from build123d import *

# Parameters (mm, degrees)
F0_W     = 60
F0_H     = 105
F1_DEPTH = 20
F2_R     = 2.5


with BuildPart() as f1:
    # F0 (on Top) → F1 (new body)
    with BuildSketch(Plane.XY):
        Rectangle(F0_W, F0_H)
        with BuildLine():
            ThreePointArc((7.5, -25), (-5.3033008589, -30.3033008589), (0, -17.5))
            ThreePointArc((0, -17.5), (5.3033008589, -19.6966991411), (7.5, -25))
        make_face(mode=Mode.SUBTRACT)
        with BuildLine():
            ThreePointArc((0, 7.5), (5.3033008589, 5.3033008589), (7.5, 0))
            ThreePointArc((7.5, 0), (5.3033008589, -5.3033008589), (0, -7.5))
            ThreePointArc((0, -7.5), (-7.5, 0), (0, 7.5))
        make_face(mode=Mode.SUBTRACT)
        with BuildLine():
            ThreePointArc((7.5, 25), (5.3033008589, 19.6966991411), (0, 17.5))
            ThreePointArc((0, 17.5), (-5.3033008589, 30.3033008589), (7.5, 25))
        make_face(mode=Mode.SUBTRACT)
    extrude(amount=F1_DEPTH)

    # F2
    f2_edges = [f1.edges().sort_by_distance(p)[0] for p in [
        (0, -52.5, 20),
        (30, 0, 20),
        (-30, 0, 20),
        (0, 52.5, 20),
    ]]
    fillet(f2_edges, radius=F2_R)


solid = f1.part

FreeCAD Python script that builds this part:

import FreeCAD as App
import Part
import Sketcher


def edges_at(feature, points):
    """Names of the edges that pass closest to the given points."""
    edges = feature.Shape.Edges
    near = lambda p: min(range(len(edges)), key=lambda i: edges[i].distToShape(Part.Vertex(*p))[0])
    return sorted({f"Edge{near(p) + 1}" for p in points})

doc = App.newDocument("Part")
body = doc.addObject("PartDesign::Body", "Body")

# Sketch on XY plane
sketch1 = body.newObject("Sketcher::SketchObject", "Sketch")
sketch1.AttachmentSupport = (doc.getObject("XY_Plane"), [""])
sketch1.MapMode = "FlatFace"
sketch1.addGeometry(Part.LineSegment(App.Vector(-30, 52, 0), App.Vector(-30, -52, 0)), False)
sketch1.addGeometry(Part.LineSegment(App.Vector(-30, -52, 0), App.Vector(30, -52, 0)), False)
sketch1.addGeometry(Part.LineSegment(App.Vector(30, -52, 0), App.Vector(30, 52, 0)), False)
sketch1.addGeometry(Part.LineSegment(App.Vector(30, 52, 0), App.Vector(-30, 52, 0)), False)
sketch1.addGeometry(Part.Circle(App.Vector(0, -25, 0), App.Vector(0, 0, 1), 8), False)
sketch1.addGeometry(Part.Circle(App.Vector(0, 0, 0), App.Vector(0, 0, 1), 8), False)
sketch1.addGeometry(Part.Circle(App.Vector(0, 25, 0), App.Vector(0, 0, 1), 8), False)
sketch1.addConstraint(Sketcher.Constraint("Coincident", 0, 2, 1, 1))
sketch1.addConstraint(Sketcher.Constraint("Coincident", 1, 2, 2, 1))
sketch1.addConstraint(Sketcher.Constraint("Coincident", 2, 2, 3, 1))
sketch1.addConstraint(Sketcher.Constraint("Coincident", 3, 2, 0, 1))
sketch1.addConstraint(Sketcher.Constraint("Vertical", 0))
sketch1.addConstraint(Sketcher.Constraint("Horizontal", 1))
sketch1.addConstraint(Sketcher.Constraint("Vertical", 2))
sketch1.addConstraint(Sketcher.Constraint("Horizontal", 3))
sketch1.addConstraint(Sketcher.Constraint("Coincident", 5, 3, -1, 1))
sketch1.addConstraint(Sketcher.Constraint("Equal", 4, 5))
sketch1.addConstraint(Sketcher.Constraint("Equal", 5, 6))
sketch1.addConstraint(Sketcher.Constraint("Symmetric", 4, 3, 6, 3, -1, 1))
sketch1.addConstraint(Sketcher.Constraint("Symmetric", 0, 2, 2, 2, -1, 1))
sketch1.addConstraint(Sketcher.Constraint("PointOnObject", 4, 3, -2))
sketch1.addConstraint(Sketcher.Constraint("Diameter", 4, 15.0))
sketch1.addConstraint(Sketcher.Constraint("DistanceX", 1, 1, 1, 2, 60.0))
sketch1.addConstraint(Sketcher.Constraint("DistanceY", 0, 2, 0, 1, 105.0))
sketch1.addConstraint(Sketcher.Constraint("DistanceY", 4, 3, -1, 1, 25.0))
pad1 = body.newObject("PartDesign::Pad", "Pad")
pad1.Profile = sketch1
pad1.Length = 20
doc.recompute()

fillet = body.newObject("PartDesign::Fillet", "Fillet")
fillet.Base = (pad1, edges_at(pad1, [
    (0, -52.5, 20),
    (30, 0, 20),
    (-30, 0, 20),
    (0, 52.5, 20),
]))
fillet.Radius = 2.5

doc.recompute()
